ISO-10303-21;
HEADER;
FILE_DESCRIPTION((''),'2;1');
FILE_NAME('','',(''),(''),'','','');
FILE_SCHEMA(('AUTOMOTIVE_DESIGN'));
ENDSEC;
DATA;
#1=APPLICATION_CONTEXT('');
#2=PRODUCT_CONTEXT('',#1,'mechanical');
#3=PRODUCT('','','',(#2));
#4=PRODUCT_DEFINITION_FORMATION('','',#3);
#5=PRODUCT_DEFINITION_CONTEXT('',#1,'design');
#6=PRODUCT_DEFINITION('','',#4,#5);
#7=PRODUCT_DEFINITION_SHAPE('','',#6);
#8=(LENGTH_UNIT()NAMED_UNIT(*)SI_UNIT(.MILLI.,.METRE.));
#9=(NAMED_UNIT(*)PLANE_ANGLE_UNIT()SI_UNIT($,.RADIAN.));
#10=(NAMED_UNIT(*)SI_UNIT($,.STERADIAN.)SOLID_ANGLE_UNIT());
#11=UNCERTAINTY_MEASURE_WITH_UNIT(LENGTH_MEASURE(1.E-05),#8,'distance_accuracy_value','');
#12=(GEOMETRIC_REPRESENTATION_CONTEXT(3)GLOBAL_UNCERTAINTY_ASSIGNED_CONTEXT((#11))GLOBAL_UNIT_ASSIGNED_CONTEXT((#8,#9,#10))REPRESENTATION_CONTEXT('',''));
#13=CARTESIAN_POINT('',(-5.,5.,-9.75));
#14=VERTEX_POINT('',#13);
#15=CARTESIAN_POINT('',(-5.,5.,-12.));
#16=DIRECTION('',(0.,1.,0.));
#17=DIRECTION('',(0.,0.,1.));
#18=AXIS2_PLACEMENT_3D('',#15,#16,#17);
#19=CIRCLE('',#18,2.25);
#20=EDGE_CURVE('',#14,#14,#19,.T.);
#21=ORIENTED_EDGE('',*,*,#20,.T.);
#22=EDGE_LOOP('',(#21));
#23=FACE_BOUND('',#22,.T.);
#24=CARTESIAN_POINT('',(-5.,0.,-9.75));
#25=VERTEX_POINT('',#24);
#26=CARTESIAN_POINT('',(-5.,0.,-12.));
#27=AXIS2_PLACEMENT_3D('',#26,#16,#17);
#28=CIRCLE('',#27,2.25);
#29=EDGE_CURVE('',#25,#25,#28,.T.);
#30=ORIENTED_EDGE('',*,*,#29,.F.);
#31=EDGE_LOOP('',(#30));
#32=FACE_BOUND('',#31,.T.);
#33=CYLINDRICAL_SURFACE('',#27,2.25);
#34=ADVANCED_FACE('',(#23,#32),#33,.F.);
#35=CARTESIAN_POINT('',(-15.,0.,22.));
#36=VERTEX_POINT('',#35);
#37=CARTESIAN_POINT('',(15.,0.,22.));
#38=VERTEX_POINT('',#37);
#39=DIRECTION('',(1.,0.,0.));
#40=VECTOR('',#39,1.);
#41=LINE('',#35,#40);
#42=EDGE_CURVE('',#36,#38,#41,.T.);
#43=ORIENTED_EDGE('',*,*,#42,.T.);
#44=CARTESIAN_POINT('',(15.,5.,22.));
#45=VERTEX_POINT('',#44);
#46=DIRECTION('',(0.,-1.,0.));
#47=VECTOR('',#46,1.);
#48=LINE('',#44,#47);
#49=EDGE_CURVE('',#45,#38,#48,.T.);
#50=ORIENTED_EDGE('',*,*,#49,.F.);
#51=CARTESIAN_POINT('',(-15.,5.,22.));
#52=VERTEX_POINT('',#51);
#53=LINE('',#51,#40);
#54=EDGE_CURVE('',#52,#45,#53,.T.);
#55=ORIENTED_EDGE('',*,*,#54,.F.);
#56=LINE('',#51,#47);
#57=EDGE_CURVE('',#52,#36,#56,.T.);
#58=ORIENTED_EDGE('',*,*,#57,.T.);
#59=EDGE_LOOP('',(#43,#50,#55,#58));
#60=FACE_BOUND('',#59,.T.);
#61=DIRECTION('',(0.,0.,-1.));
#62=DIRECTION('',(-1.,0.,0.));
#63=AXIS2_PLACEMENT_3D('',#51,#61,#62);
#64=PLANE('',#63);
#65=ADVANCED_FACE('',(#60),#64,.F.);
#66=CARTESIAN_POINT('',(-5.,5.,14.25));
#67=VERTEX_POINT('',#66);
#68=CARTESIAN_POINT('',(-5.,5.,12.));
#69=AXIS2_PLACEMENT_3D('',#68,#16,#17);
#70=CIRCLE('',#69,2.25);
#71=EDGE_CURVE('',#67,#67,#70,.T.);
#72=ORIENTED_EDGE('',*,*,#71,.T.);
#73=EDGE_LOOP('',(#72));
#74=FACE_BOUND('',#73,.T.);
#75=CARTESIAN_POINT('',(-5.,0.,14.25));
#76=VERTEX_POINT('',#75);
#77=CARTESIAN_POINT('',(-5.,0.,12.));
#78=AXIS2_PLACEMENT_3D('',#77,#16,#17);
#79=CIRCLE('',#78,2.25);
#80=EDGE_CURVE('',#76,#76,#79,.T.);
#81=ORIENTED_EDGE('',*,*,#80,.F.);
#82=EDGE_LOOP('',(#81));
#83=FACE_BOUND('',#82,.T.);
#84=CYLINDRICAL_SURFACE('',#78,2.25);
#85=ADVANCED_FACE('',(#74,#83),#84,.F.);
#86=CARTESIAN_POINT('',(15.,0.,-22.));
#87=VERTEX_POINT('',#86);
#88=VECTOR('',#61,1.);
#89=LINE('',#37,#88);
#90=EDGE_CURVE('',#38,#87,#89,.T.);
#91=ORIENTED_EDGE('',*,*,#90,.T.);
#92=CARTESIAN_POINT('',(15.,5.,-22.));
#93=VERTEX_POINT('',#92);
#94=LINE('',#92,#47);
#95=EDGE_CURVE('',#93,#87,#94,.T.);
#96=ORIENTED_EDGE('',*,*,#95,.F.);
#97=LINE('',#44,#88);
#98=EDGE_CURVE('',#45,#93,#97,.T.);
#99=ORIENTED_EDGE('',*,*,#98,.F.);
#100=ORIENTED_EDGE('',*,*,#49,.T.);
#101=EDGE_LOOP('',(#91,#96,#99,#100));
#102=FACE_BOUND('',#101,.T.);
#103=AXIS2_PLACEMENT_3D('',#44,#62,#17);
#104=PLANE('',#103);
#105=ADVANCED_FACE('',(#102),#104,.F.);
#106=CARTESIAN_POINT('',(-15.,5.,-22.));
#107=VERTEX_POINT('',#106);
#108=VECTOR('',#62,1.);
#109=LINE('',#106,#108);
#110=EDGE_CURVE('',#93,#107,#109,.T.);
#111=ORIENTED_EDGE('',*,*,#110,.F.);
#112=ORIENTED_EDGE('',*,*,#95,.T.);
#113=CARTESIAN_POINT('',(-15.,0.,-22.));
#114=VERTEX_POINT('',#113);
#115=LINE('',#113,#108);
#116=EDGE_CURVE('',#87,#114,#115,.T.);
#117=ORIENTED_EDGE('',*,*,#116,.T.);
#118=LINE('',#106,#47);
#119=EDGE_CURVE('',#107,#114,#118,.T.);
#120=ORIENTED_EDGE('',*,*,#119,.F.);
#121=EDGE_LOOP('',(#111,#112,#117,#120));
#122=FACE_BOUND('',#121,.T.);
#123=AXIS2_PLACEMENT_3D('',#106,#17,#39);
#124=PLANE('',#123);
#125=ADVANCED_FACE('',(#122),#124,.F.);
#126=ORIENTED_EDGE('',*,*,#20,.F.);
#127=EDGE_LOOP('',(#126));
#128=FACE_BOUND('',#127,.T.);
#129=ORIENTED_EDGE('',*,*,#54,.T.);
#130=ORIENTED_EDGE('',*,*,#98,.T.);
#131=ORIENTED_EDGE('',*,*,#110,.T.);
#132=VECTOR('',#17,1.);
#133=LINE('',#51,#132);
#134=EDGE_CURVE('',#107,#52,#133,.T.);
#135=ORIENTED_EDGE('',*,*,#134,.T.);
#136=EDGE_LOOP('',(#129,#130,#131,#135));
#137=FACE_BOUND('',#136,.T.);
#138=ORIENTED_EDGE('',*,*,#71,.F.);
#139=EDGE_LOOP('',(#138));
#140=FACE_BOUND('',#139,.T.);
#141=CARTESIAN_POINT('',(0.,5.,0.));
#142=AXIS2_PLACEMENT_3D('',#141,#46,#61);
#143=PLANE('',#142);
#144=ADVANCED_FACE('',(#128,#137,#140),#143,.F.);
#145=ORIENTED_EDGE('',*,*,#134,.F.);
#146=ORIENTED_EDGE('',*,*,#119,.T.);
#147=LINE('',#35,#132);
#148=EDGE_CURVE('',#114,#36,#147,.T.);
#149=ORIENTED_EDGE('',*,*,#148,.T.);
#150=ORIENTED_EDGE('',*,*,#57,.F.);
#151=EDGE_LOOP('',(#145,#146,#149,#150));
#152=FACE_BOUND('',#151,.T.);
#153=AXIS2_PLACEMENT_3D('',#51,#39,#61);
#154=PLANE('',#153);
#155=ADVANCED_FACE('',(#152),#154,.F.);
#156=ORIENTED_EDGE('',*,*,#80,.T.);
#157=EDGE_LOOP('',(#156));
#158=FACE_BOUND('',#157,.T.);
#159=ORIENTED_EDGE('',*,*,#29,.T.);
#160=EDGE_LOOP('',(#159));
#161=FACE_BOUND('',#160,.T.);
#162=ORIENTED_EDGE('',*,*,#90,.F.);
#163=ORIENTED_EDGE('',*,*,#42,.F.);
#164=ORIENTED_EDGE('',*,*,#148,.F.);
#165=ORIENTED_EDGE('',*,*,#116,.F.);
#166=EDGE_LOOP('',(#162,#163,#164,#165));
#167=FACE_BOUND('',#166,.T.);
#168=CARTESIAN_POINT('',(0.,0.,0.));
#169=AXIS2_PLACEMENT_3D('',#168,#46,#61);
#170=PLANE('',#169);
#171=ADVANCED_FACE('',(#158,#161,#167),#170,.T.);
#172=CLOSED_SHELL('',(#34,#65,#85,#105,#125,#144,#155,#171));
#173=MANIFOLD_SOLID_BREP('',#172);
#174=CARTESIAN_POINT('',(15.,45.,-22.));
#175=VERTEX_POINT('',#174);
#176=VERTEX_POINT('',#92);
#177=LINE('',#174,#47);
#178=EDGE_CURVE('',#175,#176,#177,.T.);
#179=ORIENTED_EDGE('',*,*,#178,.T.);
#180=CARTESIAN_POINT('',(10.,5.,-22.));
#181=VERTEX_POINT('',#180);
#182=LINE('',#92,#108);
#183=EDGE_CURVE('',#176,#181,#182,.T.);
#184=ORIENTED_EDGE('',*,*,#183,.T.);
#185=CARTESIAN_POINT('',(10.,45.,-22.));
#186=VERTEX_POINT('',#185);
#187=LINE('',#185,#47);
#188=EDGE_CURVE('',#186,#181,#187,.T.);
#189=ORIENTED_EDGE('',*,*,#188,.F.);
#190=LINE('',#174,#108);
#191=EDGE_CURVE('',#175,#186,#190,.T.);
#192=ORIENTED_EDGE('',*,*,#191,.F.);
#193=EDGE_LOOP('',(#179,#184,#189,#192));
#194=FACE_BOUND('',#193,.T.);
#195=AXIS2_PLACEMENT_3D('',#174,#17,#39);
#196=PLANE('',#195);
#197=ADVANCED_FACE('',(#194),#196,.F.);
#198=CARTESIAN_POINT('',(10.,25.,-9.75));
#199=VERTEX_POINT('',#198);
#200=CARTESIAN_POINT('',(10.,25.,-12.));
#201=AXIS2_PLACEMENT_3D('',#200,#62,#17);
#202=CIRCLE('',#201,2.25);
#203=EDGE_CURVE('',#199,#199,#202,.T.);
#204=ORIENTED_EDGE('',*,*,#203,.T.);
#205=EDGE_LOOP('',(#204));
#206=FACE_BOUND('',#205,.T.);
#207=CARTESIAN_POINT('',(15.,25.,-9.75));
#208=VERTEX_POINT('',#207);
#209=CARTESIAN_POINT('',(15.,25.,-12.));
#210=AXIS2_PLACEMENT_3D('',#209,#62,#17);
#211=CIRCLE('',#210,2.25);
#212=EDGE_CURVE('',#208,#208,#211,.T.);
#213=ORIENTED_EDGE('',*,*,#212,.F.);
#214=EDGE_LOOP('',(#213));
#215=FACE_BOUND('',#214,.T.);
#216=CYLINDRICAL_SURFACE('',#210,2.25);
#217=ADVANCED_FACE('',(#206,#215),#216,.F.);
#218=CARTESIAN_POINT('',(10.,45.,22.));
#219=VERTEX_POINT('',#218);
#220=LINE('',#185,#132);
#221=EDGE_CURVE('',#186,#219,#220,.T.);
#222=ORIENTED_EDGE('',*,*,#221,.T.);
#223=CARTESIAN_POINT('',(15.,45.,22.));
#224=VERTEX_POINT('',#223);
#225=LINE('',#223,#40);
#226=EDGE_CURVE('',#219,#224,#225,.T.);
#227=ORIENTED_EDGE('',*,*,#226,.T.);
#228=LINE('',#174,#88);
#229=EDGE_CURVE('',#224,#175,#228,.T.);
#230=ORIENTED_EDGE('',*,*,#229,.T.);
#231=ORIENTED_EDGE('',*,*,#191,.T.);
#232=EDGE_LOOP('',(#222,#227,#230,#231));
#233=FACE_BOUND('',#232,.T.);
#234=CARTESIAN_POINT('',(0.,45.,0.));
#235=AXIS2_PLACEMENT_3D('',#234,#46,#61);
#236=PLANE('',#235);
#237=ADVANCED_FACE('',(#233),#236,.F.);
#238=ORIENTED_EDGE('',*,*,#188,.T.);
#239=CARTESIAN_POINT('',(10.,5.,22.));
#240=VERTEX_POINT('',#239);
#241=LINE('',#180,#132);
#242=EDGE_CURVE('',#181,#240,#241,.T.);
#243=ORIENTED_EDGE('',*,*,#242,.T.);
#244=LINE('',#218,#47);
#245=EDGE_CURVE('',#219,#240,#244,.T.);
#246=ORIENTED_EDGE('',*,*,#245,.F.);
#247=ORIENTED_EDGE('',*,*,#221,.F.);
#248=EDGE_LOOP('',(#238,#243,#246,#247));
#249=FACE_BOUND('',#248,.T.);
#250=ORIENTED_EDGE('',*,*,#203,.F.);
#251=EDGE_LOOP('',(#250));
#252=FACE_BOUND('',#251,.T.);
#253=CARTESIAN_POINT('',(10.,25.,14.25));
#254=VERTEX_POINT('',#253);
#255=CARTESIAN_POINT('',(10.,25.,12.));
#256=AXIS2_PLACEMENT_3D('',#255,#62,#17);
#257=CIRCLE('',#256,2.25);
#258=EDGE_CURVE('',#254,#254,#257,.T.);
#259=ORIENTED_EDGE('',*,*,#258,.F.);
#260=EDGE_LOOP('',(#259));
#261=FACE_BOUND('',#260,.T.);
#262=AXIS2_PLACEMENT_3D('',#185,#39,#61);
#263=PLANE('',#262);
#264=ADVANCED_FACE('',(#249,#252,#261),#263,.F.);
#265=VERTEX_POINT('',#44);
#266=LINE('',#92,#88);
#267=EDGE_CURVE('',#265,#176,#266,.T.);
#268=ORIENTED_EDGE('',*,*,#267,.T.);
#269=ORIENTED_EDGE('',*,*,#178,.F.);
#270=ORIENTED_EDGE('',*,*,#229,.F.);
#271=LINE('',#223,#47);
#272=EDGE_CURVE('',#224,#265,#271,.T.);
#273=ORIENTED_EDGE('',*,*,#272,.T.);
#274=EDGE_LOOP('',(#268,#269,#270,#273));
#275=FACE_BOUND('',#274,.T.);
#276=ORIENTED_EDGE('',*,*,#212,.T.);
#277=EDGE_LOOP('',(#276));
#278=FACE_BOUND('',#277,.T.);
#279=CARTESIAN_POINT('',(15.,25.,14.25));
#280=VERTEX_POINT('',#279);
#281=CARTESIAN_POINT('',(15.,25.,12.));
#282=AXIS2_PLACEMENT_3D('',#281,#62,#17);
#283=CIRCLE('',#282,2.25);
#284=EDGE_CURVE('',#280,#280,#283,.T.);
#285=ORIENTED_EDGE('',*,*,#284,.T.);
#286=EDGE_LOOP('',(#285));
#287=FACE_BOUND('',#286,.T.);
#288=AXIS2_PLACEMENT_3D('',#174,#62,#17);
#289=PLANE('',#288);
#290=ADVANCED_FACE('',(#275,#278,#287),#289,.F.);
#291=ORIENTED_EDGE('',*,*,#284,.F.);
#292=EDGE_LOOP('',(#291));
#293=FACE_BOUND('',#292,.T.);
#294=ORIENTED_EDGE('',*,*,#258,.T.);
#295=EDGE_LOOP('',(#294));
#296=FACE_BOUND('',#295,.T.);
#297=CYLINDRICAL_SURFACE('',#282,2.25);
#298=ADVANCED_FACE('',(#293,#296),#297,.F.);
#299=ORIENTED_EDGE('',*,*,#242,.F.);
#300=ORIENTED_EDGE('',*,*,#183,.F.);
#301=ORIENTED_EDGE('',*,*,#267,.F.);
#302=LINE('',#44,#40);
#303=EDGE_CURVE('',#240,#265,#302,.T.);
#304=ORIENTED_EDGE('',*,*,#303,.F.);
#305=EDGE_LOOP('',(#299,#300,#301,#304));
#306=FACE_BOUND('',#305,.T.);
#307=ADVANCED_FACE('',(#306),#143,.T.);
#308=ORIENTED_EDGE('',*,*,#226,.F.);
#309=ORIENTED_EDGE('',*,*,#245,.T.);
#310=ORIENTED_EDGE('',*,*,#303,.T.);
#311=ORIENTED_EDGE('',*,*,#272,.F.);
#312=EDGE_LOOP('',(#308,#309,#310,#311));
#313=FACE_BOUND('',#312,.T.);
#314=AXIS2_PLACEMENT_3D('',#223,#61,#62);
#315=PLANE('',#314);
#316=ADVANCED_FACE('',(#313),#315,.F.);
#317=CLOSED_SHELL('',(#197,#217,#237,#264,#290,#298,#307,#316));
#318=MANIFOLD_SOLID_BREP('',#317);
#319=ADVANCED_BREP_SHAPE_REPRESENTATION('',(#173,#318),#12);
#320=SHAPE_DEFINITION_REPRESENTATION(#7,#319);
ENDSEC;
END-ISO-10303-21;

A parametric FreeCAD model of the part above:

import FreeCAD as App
import Part
import Sketcher

V = App.Vector

doc = App.newDocument("Part")
body = doc.addObject("PartDesign::Body", "Body")

# Sketch on XZ plane
sketch1 = body.newObject("Sketcher::SketchObject", "Sketch")
sketch1.AttachmentSupport = (doc.getObject("XZ_Plane"), [""])
sketch1.MapMode = "FlatFace"
sketch1.addGeometry([
    Part.LineSegment(V(-15, -22, 0), V(-15, 22, 0)),
    Part.LineSegment(V(-15, 22, 0), V(15, 22, 0)),
    Part.LineSegment(V(15, 22, 0), V(15, -22, 0)),
    Part.LineSegment(V(15, -22, 0), V(-15, -22, 0)),
], False)
sketch1.addConstraint([
    Sketcher.Constraint("Coincident", 0, 2, 1, 1),
    Sketcher.Constraint("Coincident", 1, 2, 2, 1),
    Sketcher.Constraint("Coincident", 2, 2, 3, 1),
    Sketcher.Constraint("Coincident", 3, 2, 0, 1),
    Sketcher.Constraint("Vertical", 0),
    Sketcher.Constraint("Horizontal", 1),
    Sketcher.Constraint("Vertical", 2),
    Sketcher.Constraint("Horizontal", 3),
    Sketcher.Constraint("Symmetric", 0, 2, 2, 2, -1, 1),
    Sketcher.Constraint("DistanceX", 1, 1, 1, 2, 30.0),
    Sketcher.Constraint("DistanceY", 0, 1, 0, 2, 44.0),
])
pad1 = body.newObject("PartDesign::Pad", "Pad")
pad1.Profile = sketch1
pad1.Length = 5
pad1.Reversed = True

# Sketch on XZ plane
sketch2 = body.newObject("Sketcher::SketchObject", "Sketch001")
sketch2.AttachmentSupport = (doc.getObject("XZ_Plane"), [""])
sketch2.MapMode = "FlatFace"
sketch2.AttachmentOffset = App.Placement(V(0, 0, -5), App.Rotation())
sketch2.addGeometry([
    Part.Circle(V(-5, 12, 0), V(0, 0, 1), 2.2),
    Part.Circle(V(-5, -12, 0), V(0, 0, 1), 2.2),
], False)
sketch2.addConstraint([
    Sketcher.Constraint("Equal", 0, 1),
    Sketcher.Constraint("Symmetric", 0, 3, 1, 3, -1),
    Sketcher.Constraint("Diameter", 0, 4.5),
    Sketcher.Constraint("DistanceX", 0, 3, -1, 1, 5.0),
    Sketcher.Constraint("DistanceY", -1, 1, 0, 3, 12.0),
])
pocket1 = body.newObject("PartDesign::Pocket", "Pocket")
pocket1.Profile = sketch2
pocket1.Type = "ThroughAll"
pocket1.Reversed = True
body2 = doc.addObject("PartDesign::Body", "Body001")

# Sketch on XZ plane
sketch3 = body2.newObject("Sketcher::SketchObject", "Sketch002")
sketch3.AttachmentSupport = (doc.getObject("XZ_Plane001"), [""])
sketch3.MapMode = "FlatFace"
sketch3.AttachmentOffset = App.Placement(V(0, 0, -5), App.Rotation())
sketch3.addGeometry([
    Part.LineSegment(V(10, -22, 0), V(10, 22, 0)),
    Part.LineSegment(V(10, 22, 0), V(15, 22, 0)),
    Part.LineSegment(V(15, 22, 0), V(15, -22, 0)),
    Part.LineSegment(V(15, -22, 0), V(10, -22, 0)),
], False)
sketch3.addConstraint([
    Sketcher.Constraint("Coincident", 0, 2, 1, 1),
    Sketcher.Constraint("Coincident", 1, 2, 2, 1),
    Sketcher.Constraint("Coincident", 2, 2, 3, 1),
    Sketcher.Constraint("Coincident", 3, 2, 0, 1),
    Sketcher.Constraint("Vertical", 0),
    Sketcher.Constraint("Horizontal", 1),
    Sketcher.Constraint("Vertical", 2),
    Sketcher.Constraint("Horizontal", 3),
    Sketcher.Constraint("DistanceX", 1, 1, 1, 2, 5.0),
    Sketcher.Constraint("DistanceY", 0, 1, 0, 2, 44.0),
    Sketcher.Constraint("DistanceX", -1, 1, 0, 2, 10.0),
    Sketcher.Constraint("DistanceY", -1, 1, 0, 2, 22.0),
])
pad2 = body2.newObject("PartDesign::Pad", "Pad001")
pad2.Profile = sketch3
pad2.Length = 40
pad2.Reversed = True

# Sketch on YZ plane
sketch4 = body2.newObject("Sketcher::SketchObject", "Sketch003")
sketch4.AttachmentSupport = (doc.getObject("YZ_Plane001"), [""])
sketch4.MapMode = "FlatFace"
sketch4.AttachmentOffset = App.Placement(V(0, 0, 10), App.Rotation())
sketch4.addGeometry([
    Part.Circle(V(25, 12, 0), V(0, 0, 1), 2.2),
    Part.Circle(V(25, -12, 0), V(0, 0, 1), 2.2),
], False)
sketch4.addConstraint([
    Sketcher.Constraint("Equal", 0, 1),
    Sketcher.Constraint("Symmetric", 0, 3, 1, 3, -1),
    Sketcher.Constraint("Diameter", 0, 4.5),
    Sketcher.Constraint("DistanceX", -1, 1, 0, 3, 25.0),
    Sketcher.Constraint("DistanceY", -1, 1, 0, 3, 12.0),
])
pocket2 = body2.newObject("PartDesign::Pocket", "Pocket001")
pocket2.Profile = sketch4
pocket2.Type = "ThroughAll"
pocket2.Reversed = True

doc.recompute()
